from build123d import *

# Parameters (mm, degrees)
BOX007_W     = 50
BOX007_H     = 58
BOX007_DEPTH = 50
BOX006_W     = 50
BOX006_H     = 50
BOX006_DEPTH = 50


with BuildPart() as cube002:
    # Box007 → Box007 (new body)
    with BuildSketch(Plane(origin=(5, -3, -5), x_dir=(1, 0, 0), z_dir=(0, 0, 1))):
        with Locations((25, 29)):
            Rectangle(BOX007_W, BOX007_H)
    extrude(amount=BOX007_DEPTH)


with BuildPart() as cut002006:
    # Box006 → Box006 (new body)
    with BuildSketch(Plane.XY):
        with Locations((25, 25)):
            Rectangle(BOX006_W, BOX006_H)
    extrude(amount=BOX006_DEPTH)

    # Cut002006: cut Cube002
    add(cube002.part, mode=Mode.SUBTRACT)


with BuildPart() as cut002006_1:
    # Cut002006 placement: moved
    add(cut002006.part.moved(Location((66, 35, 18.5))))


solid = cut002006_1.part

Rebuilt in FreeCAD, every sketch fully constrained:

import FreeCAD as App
import Part
import Sketcher
from FreeCAD import Vector


def add_polygon(sketch, points):
    """Adds a closed chain of lines whose ends are joined by coincident constraints."""
    first, n = sketch.GeometryCount, len(points)
    for a, b in zip(points, points[1:] + points[:1]):
        sketch.addGeometry(Part.LineSegment(App.Vector(*a, 0), App.Vector(*b, 0)), False)
    for i in range(n):
        sketch.addConstraint(Sketcher.Constraint("Coincident", first + i, 2, first + (i + 1) % n, 1))

doc = App.newDocument("Part")
body = doc.addObject("PartDesign::Body", "Body")

sketch1 = body.newObject("Sketcher::SketchObject", "Sketch")
sketch1.AttachmentSupport = (doc.getObject("XY_Plane"), [""])
sketch1.MapMode = "FlatFace"
sketch1.AttachmentOffset = App.Placement(Vector(0, 0, -5), App.Rotation())
add_polygon(sketch1, [(5, 55), (5, -3), (55, -3), (55, 55)])
sketch1.addConstraint([
    Sketcher.Constraint("Vertical", 0),
    Sketcher.Constraint("Horizontal", 1),
    Sketcher.Constraint("Vertical", 2),
    Sketcher.Constraint("Horizontal", 3),
    Sketcher.Constraint("DistanceX", 1, 1, 1, 2, 50.0),
    Sketcher.Constraint("DistanceY", 0, 2, 0, 1, 58.0),
    Sketcher.Constraint("DistanceX", -1, 1, 0, 2, 5.0),
    Sketcher.Constraint("DistanceY", 0, 2, -1, 1, 3.0),
])
pad1 = body.newObject("PartDesign::Pad", "Pad")
pad1.Profile = sketch1
pad1.Length = 50
body2 = doc.addObject("PartDesign::Body", "Body001")

sketch2 = body2.newObject("Sketcher::SketchObject", "Sketch001")
sketch2.AttachmentSupport = (doc.getObject("XY_Plane001"), [""])
sketch2.MapMode = "FlatFace"
add_polygon(sketch2, [(0, 50), (0, 0), (50, 0), (50, 50)])
sketch2.addConstraint([
    Sketcher.Constraint("Vertical", 0),
    Sketcher.Constraint("Horizontal", 1),
    Sketcher.Constraint("Vertical", 2),
    Sketcher.Constraint("Horizontal", 3),
    Sketcher.Constraint("Coincident", 0, 2, -1, 1),
    Sketcher.Constraint("Equal", 3, 0),
    Sketcher.Constraint("DistanceX", 1, 1, 1, 2, 50.0),
])
pad2 = body2.newObject("PartDesign::Pad", "Pad001")
pad2.Profile = sketch2
pad2.Length = 50
doc.recompute()

boolean = body2.newObject("PartDesign::Boolean", "Boolean")
boolean.Type = "Cut"
boolean.addObjects([body])
body3 = doc.addObject("PartDesign::Body", "Body002")
doc.recompute()

body2.Placement = App.Placement(Vector(66, 35, 18.5), App.Rotation(Vector(0, 0, 1), 0))
boolean2 = body3.newObject("PartDesign::Boolean", "Boolean001")
boolean2.Type = "Fuse"
boolean2.addObjects([body2])

doc.recompute()
